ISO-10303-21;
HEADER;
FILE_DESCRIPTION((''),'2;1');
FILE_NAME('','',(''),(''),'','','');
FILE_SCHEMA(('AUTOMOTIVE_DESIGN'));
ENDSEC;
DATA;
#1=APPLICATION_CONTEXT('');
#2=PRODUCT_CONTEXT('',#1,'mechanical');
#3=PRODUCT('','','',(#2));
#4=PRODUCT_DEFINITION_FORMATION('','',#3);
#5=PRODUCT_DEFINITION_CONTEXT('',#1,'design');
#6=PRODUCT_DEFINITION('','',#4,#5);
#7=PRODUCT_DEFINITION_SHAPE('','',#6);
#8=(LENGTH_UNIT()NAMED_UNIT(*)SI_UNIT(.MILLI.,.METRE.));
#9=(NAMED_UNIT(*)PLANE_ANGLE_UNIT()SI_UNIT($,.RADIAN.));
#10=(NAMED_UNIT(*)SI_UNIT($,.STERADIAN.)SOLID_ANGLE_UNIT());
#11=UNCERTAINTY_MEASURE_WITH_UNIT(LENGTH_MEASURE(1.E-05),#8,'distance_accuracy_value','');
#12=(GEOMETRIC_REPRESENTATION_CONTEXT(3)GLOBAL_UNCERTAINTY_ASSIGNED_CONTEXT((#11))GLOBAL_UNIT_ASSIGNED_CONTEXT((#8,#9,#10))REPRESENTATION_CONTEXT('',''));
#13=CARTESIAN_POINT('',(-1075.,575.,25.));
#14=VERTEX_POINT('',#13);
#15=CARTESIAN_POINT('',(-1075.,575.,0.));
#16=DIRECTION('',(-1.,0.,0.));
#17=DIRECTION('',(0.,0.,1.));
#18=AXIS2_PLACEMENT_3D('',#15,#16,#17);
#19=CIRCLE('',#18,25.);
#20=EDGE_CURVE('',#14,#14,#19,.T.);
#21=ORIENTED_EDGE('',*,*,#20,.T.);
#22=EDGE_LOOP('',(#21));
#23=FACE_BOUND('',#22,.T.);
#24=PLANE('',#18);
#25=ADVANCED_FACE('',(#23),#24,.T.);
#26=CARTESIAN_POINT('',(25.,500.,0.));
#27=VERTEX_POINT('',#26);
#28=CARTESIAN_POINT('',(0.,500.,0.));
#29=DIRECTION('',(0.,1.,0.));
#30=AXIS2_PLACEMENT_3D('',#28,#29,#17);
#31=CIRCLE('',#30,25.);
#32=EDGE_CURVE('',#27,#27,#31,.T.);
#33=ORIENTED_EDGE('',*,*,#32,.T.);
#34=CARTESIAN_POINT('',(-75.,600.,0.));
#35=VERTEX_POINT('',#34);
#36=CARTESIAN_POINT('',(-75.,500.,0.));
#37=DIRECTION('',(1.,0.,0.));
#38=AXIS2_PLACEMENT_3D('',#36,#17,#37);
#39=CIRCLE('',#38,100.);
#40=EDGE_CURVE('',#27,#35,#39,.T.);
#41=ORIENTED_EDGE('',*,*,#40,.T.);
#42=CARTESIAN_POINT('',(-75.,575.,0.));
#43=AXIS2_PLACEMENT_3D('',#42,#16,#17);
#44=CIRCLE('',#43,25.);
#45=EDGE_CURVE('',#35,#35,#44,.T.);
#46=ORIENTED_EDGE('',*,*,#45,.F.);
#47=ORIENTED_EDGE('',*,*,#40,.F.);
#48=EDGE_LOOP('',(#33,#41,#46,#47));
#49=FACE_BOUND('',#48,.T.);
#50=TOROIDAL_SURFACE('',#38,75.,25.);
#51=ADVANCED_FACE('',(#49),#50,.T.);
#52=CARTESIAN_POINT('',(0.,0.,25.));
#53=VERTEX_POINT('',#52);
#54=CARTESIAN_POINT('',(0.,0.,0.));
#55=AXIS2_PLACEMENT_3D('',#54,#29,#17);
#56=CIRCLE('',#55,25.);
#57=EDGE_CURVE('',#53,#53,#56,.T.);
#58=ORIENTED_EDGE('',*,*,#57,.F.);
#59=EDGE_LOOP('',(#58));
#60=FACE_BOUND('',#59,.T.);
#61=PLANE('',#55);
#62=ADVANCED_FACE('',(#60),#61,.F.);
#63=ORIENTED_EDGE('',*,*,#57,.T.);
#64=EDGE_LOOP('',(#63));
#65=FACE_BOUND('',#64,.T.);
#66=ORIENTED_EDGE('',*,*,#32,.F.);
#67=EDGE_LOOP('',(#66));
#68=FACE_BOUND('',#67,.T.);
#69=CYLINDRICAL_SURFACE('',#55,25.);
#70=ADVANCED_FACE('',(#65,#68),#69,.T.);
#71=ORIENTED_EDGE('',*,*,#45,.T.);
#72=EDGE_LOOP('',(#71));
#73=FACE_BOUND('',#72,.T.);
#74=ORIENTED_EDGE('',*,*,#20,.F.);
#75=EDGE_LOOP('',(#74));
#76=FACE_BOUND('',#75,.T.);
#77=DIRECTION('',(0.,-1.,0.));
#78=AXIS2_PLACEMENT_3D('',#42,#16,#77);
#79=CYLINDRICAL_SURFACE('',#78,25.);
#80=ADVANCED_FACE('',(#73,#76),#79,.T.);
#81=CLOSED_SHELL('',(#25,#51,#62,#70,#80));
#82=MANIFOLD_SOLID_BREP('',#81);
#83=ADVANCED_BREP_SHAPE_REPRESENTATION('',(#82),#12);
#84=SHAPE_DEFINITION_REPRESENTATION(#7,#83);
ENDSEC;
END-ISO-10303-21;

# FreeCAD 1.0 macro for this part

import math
import FreeCAD as App
import Part
import Sketcher

doc = App.newDocument("Part")
body = doc.addObject("PartDesign::Body", "Body")

# Sketch on XZ plane
sketch1 = body.newObject("Sketcher::SketchObject", "Sketch")
sketch1.AttachmentSupport = (doc.getObject("XZ_Plane"), [""])
sketch1.MapMode = "FlatFace"
sketch1.addGeometry(Part.Circle(App.Vector(0, 0, 0), App.Vector(0, 0, 1), 25), False)
sketch1.addConstraint(Sketcher.Constraint("Coincident", 0, 3, -1, 1))
sketch1.addConstraint(Sketcher.Constraint("Diameter", 0, 50.0))

# Sketch on XY plane
sketch2 = body.newObject("Sketcher::SketchObject", "Sketch001")
sketch2.AttachmentSupport = (doc.getObject("XY_Plane"), [""])
sketch2.MapMode = "FlatFace"
sketch2.addGeometry(Part.LineSegment(App.Vector(0, 0, 0), App.Vector(0, 500, 0)), False)
sketch2.addGeometry(Part.ArcOfCircle(Part.Circle(App.Vector(-75, 500, 0), App.Vector(0, 0, 1), 75), math.radians(0), math.radians(90)), False)
sketch2.addGeometry(Part.LineSegment(App.Vector(-75, 575, 0), App.Vector(-1075, 575, 0)), False)
sketch2.addConstraint(Sketcher.Constraint("Tangent", 0, 2, 1, 1))
sketch2.addConstraint(Sketcher.Constraint("Tangent", 1, 2, 2, 1))
sketch2.addConstraint(Sketcher.Constraint("Vertical", 0))
sketch2.addConstraint(Sketcher.Constraint("Horizontal", 2))
sketch2.addConstraint(Sketcher.Constraint("Coincident", 0, 1, -1, 1))
sketch2.addConstraint(Sketcher.Constraint("Radius", 1, 75.0))
sketch2.addConstraint(Sketcher.Constraint("DistanceX", 2, 2, 2, 1, 1000.0))
sketch2.addConstraint(Sketcher.Constraint("DistanceY", 0, 1, 0, 2, 500.0))
doc.recompute()

additivepipe = body.newObject("PartDesign::AdditivePipe", "AdditivePipe")
additivepipe.Profile = sketch1
additivepipe.Spine = (sketch2, ["Edge1", "Edge2", "Edge3"])

doc.recompute()
